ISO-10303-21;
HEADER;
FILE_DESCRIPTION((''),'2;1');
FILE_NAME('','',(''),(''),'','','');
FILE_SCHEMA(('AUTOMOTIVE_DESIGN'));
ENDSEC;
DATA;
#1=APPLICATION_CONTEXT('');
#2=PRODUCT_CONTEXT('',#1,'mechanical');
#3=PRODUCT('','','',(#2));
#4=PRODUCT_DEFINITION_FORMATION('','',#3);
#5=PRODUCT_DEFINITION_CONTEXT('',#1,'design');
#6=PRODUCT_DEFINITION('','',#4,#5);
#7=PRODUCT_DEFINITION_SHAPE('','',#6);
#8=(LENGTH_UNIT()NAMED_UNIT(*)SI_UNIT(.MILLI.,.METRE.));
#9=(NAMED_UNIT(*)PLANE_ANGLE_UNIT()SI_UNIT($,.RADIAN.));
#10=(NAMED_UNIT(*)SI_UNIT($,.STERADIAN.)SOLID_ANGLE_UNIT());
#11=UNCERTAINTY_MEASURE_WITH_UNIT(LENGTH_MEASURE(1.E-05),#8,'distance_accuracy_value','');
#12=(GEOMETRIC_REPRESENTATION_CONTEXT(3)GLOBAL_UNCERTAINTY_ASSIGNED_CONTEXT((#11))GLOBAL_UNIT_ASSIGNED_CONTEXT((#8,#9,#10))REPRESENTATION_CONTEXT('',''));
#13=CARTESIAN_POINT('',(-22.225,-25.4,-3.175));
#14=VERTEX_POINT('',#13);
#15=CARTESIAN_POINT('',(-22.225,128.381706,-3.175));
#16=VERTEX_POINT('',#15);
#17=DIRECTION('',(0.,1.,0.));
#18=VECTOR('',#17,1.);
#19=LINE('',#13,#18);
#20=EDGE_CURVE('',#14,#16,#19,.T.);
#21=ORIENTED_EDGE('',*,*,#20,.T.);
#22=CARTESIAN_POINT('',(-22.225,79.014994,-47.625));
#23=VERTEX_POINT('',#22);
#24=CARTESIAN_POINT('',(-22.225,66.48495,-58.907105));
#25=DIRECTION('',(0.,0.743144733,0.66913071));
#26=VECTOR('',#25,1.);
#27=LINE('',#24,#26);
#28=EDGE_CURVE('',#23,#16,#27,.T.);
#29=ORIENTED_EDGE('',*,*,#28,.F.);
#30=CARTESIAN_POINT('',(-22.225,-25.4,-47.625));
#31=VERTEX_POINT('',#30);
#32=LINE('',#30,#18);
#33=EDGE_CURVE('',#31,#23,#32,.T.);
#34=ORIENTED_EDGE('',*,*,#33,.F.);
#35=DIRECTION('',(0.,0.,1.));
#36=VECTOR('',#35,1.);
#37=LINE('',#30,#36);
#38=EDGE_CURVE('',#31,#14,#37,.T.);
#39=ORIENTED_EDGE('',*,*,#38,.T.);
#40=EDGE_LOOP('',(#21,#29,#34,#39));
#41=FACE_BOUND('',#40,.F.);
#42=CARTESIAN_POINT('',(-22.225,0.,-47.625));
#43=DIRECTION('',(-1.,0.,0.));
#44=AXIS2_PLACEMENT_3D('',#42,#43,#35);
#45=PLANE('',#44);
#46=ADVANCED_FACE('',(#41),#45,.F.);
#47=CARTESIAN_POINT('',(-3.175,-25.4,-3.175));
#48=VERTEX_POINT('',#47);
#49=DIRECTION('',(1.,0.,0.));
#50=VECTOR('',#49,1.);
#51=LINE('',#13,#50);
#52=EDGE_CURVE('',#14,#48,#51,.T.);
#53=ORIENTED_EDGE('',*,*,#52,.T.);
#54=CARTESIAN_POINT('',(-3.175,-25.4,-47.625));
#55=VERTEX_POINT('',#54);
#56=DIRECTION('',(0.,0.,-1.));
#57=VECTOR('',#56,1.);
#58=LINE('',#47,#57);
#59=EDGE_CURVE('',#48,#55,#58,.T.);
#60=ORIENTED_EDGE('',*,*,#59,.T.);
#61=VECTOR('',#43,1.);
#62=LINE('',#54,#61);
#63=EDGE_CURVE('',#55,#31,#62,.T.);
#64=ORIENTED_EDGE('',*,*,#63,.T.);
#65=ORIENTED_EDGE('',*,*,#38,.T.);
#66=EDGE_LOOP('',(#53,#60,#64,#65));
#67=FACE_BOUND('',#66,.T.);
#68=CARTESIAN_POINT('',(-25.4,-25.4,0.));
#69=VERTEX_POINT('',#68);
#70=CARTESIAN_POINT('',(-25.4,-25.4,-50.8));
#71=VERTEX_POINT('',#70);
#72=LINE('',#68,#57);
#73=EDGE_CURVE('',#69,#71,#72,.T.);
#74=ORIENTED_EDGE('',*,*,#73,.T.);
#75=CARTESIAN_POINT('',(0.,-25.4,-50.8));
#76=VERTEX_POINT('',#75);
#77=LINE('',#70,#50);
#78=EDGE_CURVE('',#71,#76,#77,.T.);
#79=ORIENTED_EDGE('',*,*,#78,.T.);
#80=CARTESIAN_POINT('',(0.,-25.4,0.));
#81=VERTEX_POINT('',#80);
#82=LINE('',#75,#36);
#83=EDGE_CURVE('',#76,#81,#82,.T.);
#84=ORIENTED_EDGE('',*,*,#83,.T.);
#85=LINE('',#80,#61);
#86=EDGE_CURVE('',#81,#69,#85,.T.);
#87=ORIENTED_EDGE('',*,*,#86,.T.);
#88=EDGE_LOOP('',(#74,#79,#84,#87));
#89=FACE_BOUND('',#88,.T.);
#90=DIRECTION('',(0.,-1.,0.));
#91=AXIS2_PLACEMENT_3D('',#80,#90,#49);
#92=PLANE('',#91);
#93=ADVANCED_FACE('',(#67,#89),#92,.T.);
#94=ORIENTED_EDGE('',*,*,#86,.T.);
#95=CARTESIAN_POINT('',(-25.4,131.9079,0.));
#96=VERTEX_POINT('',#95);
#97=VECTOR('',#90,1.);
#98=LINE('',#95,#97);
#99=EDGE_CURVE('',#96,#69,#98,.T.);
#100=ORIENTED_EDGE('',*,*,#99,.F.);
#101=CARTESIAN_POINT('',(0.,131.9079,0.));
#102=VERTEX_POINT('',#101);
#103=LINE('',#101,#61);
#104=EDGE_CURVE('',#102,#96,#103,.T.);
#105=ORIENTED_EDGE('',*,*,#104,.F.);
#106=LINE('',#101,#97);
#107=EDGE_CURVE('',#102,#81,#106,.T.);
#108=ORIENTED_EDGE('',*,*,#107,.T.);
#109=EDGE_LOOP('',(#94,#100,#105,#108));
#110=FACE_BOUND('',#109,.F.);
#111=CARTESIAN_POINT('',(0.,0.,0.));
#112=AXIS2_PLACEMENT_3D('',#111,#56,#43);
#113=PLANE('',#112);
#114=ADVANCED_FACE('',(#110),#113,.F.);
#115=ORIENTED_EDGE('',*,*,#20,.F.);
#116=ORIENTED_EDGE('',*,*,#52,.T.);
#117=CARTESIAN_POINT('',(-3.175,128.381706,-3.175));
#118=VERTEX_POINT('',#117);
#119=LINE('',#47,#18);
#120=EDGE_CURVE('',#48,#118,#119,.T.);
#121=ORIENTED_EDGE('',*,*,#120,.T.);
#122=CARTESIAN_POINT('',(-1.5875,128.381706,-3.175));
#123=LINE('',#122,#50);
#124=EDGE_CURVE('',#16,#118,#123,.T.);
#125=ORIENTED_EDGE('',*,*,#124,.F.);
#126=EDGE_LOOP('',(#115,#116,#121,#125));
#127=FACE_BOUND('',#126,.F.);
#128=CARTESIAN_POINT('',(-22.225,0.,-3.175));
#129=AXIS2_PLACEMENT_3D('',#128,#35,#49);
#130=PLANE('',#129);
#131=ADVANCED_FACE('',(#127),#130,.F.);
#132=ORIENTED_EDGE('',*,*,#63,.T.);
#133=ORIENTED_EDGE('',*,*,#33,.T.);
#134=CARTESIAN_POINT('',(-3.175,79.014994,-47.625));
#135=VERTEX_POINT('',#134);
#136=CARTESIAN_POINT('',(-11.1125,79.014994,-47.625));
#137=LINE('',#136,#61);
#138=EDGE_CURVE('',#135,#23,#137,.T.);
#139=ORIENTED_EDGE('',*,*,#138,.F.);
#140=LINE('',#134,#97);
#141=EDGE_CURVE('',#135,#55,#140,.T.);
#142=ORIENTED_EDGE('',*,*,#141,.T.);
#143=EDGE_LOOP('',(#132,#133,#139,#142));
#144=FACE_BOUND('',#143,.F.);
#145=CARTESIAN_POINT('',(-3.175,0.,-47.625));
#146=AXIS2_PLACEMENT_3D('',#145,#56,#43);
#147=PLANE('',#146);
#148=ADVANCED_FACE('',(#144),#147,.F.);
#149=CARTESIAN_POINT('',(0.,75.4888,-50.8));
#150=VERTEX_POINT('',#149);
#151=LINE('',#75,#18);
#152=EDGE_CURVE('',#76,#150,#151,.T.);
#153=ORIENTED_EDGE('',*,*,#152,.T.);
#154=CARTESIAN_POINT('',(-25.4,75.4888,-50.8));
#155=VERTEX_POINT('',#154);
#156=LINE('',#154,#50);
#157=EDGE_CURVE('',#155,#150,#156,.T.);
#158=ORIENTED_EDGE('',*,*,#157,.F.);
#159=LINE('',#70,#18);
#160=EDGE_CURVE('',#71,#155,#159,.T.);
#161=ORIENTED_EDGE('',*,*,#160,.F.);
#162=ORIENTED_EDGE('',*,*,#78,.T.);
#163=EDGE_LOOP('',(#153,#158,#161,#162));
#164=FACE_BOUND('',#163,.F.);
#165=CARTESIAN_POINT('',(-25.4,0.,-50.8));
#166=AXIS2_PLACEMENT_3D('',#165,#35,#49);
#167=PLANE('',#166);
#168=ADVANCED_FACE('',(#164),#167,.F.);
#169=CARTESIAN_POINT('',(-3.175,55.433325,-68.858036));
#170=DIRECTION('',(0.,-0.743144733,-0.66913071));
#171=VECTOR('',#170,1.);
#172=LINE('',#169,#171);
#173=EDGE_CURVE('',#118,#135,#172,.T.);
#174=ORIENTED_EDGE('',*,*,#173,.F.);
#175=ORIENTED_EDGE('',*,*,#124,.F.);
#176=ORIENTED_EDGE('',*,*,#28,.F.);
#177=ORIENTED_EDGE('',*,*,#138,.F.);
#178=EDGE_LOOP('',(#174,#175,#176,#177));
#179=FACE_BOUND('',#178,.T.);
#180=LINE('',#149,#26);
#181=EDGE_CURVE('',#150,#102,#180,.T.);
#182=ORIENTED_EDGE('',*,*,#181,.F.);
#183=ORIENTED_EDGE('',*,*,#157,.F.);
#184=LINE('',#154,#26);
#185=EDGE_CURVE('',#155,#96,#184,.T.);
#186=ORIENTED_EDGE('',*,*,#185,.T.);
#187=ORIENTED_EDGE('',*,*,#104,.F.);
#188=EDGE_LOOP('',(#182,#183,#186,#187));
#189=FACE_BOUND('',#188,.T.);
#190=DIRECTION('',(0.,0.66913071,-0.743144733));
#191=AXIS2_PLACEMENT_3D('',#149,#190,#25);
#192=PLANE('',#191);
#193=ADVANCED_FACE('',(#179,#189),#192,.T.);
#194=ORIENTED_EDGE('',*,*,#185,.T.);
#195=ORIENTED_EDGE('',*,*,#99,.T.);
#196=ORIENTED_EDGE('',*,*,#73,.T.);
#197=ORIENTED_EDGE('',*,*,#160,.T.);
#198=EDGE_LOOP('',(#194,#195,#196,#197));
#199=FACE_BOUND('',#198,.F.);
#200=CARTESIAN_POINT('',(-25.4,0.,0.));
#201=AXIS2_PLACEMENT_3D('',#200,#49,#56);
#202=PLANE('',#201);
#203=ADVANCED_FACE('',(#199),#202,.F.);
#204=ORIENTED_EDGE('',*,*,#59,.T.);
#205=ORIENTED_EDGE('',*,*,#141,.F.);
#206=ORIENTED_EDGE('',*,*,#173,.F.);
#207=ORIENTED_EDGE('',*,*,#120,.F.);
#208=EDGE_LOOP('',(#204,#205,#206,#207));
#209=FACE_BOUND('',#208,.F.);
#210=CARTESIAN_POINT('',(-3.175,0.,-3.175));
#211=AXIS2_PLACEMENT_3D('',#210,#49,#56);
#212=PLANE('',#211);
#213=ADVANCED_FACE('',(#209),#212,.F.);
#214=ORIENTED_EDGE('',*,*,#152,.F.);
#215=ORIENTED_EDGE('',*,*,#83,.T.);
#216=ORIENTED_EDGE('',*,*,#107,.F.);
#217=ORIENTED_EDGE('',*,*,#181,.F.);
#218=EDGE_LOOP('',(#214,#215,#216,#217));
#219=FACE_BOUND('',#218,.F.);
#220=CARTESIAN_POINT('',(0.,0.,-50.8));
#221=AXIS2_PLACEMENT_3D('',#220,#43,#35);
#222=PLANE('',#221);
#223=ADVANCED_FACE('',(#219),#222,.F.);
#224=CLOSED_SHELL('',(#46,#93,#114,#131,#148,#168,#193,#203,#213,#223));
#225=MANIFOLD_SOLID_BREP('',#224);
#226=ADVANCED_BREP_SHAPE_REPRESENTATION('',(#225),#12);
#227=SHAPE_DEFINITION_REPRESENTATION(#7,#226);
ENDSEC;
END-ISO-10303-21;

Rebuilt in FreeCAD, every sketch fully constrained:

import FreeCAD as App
import Part
import Sketcher

V = App.Vector
Q = App.Units.Quantity


def add_polygon(sketch, points):
    """Adds a closed chain of lines whose ends are joined by coincident constraints."""
    first, n = sketch.GeometryCount, len(points)
    for a, b in zip(points, points[1:] + points[:1]):
        sketch.addGeometry(Part.LineSegment(App.Vector(*a, 0), App.Vector(*b, 0)), False)
    for i in range(n):
        sketch.addConstraint(Sketcher.Constraint("Coincident", first + i, 2, first + (i + 1) % n, 1))

doc = App.newDocument("Part")
params = doc.addObject("Spreadsheet::Sheet", "Params")
for row, (alias, value) in enumerate([
    ("sketch1_width", "1 in"),
    ("sketch1_height", "2 in"),
    ("pad1_length", "2.972 in"),
    ("sketch2_height", "2 in"),
    ("pad2_length", "1 in"),
    ("sketch3_width", "0.75 in"),
    ("sketch3_height", "1.75 in"),
    ("sketch4_width", "1 in"),
    ("sketch4_height", "2 in"),
    ("sketch4_width2", "0.75 in"),
    ("sketch4_height2", "1.75 in"),
    ("pad3_length", "1 in"),
], start=1):
    params.set(f"A{row}", alias)
    params.set(f"B{row}", "=" + value)
    params.setAlias(f"B{row}", alias)

body = doc.addObject("PartDesign::Body", "Body")

sketch1 = doc.addObject("Sketcher::SketchObject", "Sketch")
body.addObject(sketch1)
sketch1.AttachmentSupport = (doc.XZ_Plane, [""])
sketch1.MapMode = "FlatFace"
add_polygon(sketch1, [(-25, 0), (0, 0), (0, -51), (-25, -51)])
add_polygon(sketch1, [(-22, -3), (-22, -48), (-3, -48), (-3, -3)])
sketch1.addConstraint(Sketcher.Constraint("Horizontal", 0))
sketch1.addConstraint(Sketcher.Constraint("Vertical", 1))
sketch1.addConstraint(Sketcher.Constraint("Horizontal", 2))
sketch1.addConstraint(Sketcher.Constraint("Vertical", 3))
sketch1.addConstraint(Sketcher.Constraint("Vertical", 4))
sketch1.addConstraint(Sketcher.Constraint("Horizontal", 5))
sketch1.addConstraint(Sketcher.Constraint("Vertical", 6))
sketch1.addConstraint(Sketcher.Constraint("Horizontal", 7))
sketch1.addConstraint(Sketcher.Constraint("Coincident", 0, 2, -1, 1))
sketch1.addConstraint(Sketcher.Constraint("DistanceX", 0, 1, 0, 2, Q("1 in")))
sketch1.addConstraint(Sketcher.Constraint("DistanceY", 1, 2, 1, 1, Q("2 in")))
sketch1.addConstraint(Sketcher.Constraint("DistanceX", 5, 2, -1, 1, Q("0.125 in")))
sketch1.addConstraint(Sketcher.Constraint("DistanceY", 6, 2, -1, 1, Q("0.125 in")))
sketch1.addConstraint(Sketcher.Constraint("DistanceX", 2, 2, 4, 2, Q("0.125 in")))
sketch1.addConstraint(Sketcher.Constraint("DistanceY", 2, 2, 4, 2, Q("0.125 in")))
sketch1.setExpression("Constraints[17]", "Params.sketch1_width")
sketch1.setExpression("Constraints[18]", "Params.sketch1_height")
pad1 = doc.addObject("PartDesign::Pad", "Pad")
body.addObject(pad1)
pad1.Profile = sketch1
pad1.setExpression("Length", "Params.pad1_length")
pad1.Reversed = True

sketch2 = doc.addObject("Sketcher::SketchObject", "Sketch001")
body.addObject(sketch2)
sketch2.AttachmentSupport = (doc.YZ_Plane, [""])
sketch2.MapMode = "FlatFace"
add_polygon(sketch2, [(75, 0), (75, -51), (132, 0)])
sketch2.addConstraint(Sketcher.Constraint("Vertical", 0))
sketch2.addConstraint(Sketcher.Constraint("Horizontal", 2))
sketch2.addConstraint(Sketcher.Constraint("PointOnObject", 1, 2, -1))
sketch2.addConstraint(Sketcher.Constraint("DistanceY", 0, 2, 0, 1, Q("2 in")))
sketch2.addConstraint(Sketcher.Constraint("Angle", 1, Q("42 deg")))
sketch2.addConstraint(Sketcher.Constraint("DistanceX", -1, 1, 0, 2, Q("2.972 in")))
sketch2.setExpression("Constraints[6]", "Params.sketch2_height")
pad2 = doc.addObject("PartDesign::Pad", "Pad001")
body.addObject(pad2)
pad2.Profile = sketch2
pad2.setExpression("Length", "Params.pad2_length")
pad2.Reversed = True

sketch3 = doc.addObject("Sketcher::SketchObject", "Sketch002")
body.addObject(sketch3)
sketch3.AttachmentSupport = (doc.XZ_Plane, [""])
sketch3.MapMode = "FlatFace"
add_polygon(sketch3, [(-22, -3), (-22, -48), (-3, -48), (-3, -3)])
sketch3.addConstraint(Sketcher.Constraint("Vertical", 0))
sketch3.addConstraint(Sketcher.Constraint("Horizontal", 1))
sketch3.addConstraint(Sketcher.Constraint("Vertical", 2))
sketch3.addConstraint(Sketcher.Constraint("Horizontal", 3))
sketch3.addConstraint(Sketcher.Constraint("DistanceX", 1, 1, 1, 2, Q("0.75 in")))
sketch3.addConstraint(Sketcher.Constraint("DistanceY", 0, 2, 0, 1, Q("1.75 in")))
sketch3.addConstraint(Sketcher.Constraint("DistanceX", 0, 2, -1, 1, Q("0.875 in")))
sketch3.addConstraint(Sketcher.Constraint("DistanceY", 0, 2, -1, 1, Q("1.875 in")))
sketch3.setExpression("Constraints[8]", "Params.sketch3_width")
sketch3.setExpression("Constraints[9]", "Params.sketch3_height")
pocket1 = doc.addObject("PartDesign::Pocket", "Pocket")
body.addObject(pocket1)
pocket1.Profile = sketch3
pocket1.Type = "ThroughAll"

sketch4 = doc.addObject("Sketcher::SketchObject", "Sketch003")
body.addObject(sketch4)
sketch4.AttachmentSupport = (doc.XZ_Plane, [""])
sketch4.MapMode = "FlatFace"
add_polygon(sketch4, [(0, -51), (0, 0), (-25, 0), (-25, -51)])
add_polygon(sketch4, [(-3, -3), (-3, -48), (-22, -48), (-22, -3)])
sketch4.addConstraint(Sketcher.Constraint("Vertical", 0))
sketch4.addConstraint(Sketcher.Constraint("Horizontal", 1))
sketch4.addConstraint(Sketcher.Constraint("Vertical", 2))
sketch4.addConstraint(Sketcher.Constraint("Horizontal", 3))
sketch4.addConstraint(Sketcher.Constraint("Vertical", 4))
sketch4.addConstraint(Sketcher.Constraint("Horizontal", 5))
sketch4.addConstraint(Sketcher.Constraint("Vertical", 6))
sketch4.addConstraint(Sketcher.Constraint("Horizontal", 7))
sketch4.addConstraint(Sketcher.Constraint("Coincident", 0, 2, -1, 1))
sketch4.addConstraint(Sketcher.Constraint("DistanceX", 1, 2, 1, 1, Q("1 in")))
sketch4.addConstraint(Sketcher.Constraint("DistanceY", 0, 1, 0, 2, Q("2 in")))
sketch4.addConstraint(Sketcher.Constraint("DistanceX", 5, 2, 5, 1, Q("0.75 in")))
sketch4.addConstraint(Sketcher.Constraint("DistanceY", 4, 2, 4, 1, Q("1.75 in")))
sketch4.addConstraint(Sketcher.Constraint("DistanceX", 4, 2, -1, 1, Q("0.125 in")))
sketch4.addConstraint(Sketcher.Constraint("DistanceY", 4, 2, -1, 1, Q("1.875 in")))
sketch4.setExpression("Constraints[17]", "Params.sketch4_width")
sketch4.setExpression("Constraints[18]", "Params.sketch4_height")
sketch4.setExpression("Constraints[19]", "Params.sketch4_width2")
sketch4.setExpression("Constraints[20]", "Params.sketch4_height2")
pad3 = doc.addObject("PartDesign::Pad", "Pad002")
body.addObject(pad3)
pad3.Profile = sketch4
pad3.setExpression("Length", "Params.pad3_length")

doc.recompute()
